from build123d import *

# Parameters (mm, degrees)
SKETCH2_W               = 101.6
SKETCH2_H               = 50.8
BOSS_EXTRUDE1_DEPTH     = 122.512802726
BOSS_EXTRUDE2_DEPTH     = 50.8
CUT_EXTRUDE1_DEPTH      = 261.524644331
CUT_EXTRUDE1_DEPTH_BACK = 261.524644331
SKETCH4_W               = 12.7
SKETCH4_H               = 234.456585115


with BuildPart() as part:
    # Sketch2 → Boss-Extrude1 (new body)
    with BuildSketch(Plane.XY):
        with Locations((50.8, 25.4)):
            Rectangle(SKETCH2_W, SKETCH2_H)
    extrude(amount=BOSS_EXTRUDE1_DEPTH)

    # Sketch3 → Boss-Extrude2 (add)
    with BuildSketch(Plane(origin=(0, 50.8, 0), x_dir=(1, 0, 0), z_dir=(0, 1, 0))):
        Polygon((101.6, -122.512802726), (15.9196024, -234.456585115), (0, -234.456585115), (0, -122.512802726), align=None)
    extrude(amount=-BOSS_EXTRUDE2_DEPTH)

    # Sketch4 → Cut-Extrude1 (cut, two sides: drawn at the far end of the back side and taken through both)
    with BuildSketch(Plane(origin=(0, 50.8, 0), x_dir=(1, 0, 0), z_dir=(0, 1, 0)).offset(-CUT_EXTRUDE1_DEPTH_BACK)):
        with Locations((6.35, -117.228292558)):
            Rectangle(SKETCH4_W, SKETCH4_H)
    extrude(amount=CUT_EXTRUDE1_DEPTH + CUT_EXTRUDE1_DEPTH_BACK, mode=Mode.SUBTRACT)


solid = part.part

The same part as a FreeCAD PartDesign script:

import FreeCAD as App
import Part
import Sketcher
Q = App.Units.Quantity


def add_polygon(sketch, points):
    """Adds a closed chain of lines whose ends are joined by coincident constraints."""
    first, n = sketch.GeometryCount, len(points)
    for a, b in zip(points, points[1:] + points[:1]):
        sketch.addGeometry(Part.LineSegment(App.Vector(*a, 0), App.Vector(*b, 0)), False)
    for i in range(n):
        sketch.addConstraint(Sketcher.Constraint("Coincident", first + i, 2, first + (i + 1) % n, 1))

doc = App.newDocument("Part")
body = doc.addObject("PartDesign::Body", "Body")

# Sketch on XY plane
sketch1 = doc.addObject("Sketcher::SketchObject", "Sketch")
body.addObject(sketch1)
sketch1.AttachmentSupport = (doc.XY_Plane, [""])
sketch1.MapMode = "FlatFace"
add_polygon(sketch1, [(0, 51), (0, 0), (102, 0), (102, 51)])  # lines 0-3
sketch1.addConstraint([
    Sketcher.Constraint("Vertical", 0),
    Sketcher.Constraint("Horizontal", 1),
    Sketcher.Constraint("Vertical", 2),
    Sketcher.Constraint("Horizontal", 3),
    Sketcher.Constraint("Coincident", 0, 2, -1, 1),
    Sketcher.Constraint("DistanceX", 1, 1, 1, 2, Q("4 in")),
    Sketcher.Constraint("DistanceY", 0, 2, 0, 1, Q("2 in")),
])
pad1 = doc.addObject("PartDesign::Pad", "Pad")
body.addObject(pad1)
pad1.Profile = sketch1
pad1.Length = 122.512803

# Sketch on XZ plane
sketch2 = doc.addObject("Sketcher::SketchObject", "Sketch001")
body.addObject(sketch2)
sketch2.AttachmentSupport = (doc.XZ_Plane, [""])
sketch2.MapMode = "FlatFace"
sketch2.AttachmentOffset = App.Placement(App.Vector(0, 0, -2 * 25.4), App.Rotation())
add_polygon(sketch2, [(16, 234), (102, 123), (0, 123), (0, 234)])  # lines 0-3
sketch2.addConstraint([
    Sketcher.Constraint("Horizontal", 1),
    Sketcher.Constraint("Vertical", 2),
    Sketcher.Constraint("Horizontal", 3),
    Sketcher.Constraint("PointOnObject", 1, 2, -2),
    Sketcher.Constraint("DistanceX", 1, 2, 1, 1, Q("4 in")),
    Sketcher.Constraint("Distance", 0, Q("5.55 in")),
    Sketcher.Constraint("Angle", 0, Q("-52.57 deg")),
    Sketcher.Constraint("DistanceY", -1, 1, 0, 2, 122.512803),
])
pad2 = doc.addObject("PartDesign::Pad", "Pad001")
body.addObject(pad2)
pad2.Profile = sketch2
pad2.Length = Q("2 in")

# Sketch on XZ plane
sketch3 = doc.addObject("Sketcher::SketchObject", "Sketch002")
body.addObject(sketch3)
sketch3.AttachmentSupport = (doc.XZ_Plane, [""])
sketch3.MapMode = "FlatFace"
sketch3.AttachmentOffset = App.Placement(App.Vector(0, 0, -2 * 25.4), App.Rotation())
add_polygon(sketch3, [(0, 0), (0, 234), (13, 234), (13, 0)])  # lines 0-3
sketch3.addConstraint([
    Sketcher.Constraint("Vertical", 0),
    Sketcher.Constraint("Horizontal", 1),
    Sketcher.Constraint("Vertical", 2),
    Sketcher.Constraint("Horizontal", 3),
    Sketcher.Constraint("Coincident", 3, 2, -1, 1),
    Sketcher.Constraint("DistanceX", 1, 1, 1, 2, Q("0.5 in")),
    Sketcher.Constraint("DistanceY", 0, 1, 0, 2, 234.456585),
])
pocket1 = doc.addObject("PartDesign::Pocket", "Pocket")
body.addObject(pocket1)
pocket1.Profile = sketch3
pocket1.Type = "ThroughAll"
pocket1.Midplane = True

doc.recompute()
